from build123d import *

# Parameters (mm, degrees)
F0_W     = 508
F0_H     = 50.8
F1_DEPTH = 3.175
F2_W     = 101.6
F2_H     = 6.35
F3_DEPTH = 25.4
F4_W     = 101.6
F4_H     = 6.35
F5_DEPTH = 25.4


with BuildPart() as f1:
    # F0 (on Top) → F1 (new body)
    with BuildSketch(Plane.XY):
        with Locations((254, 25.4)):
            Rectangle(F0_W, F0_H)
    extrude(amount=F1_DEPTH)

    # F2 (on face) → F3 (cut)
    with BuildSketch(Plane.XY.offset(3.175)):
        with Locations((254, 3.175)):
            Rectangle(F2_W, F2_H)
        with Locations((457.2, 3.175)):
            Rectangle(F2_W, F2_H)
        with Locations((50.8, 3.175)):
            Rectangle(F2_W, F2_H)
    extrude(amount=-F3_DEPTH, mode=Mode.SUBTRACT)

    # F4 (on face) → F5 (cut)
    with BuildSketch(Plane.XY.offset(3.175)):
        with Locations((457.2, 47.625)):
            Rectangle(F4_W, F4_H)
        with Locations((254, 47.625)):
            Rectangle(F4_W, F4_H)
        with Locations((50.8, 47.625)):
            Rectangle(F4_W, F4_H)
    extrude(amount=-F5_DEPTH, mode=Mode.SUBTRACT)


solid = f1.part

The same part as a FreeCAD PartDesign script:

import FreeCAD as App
import Part
import Sketcher

V = App.Vector
Q = App.Units.Quantity


def add_polygon(sketch, points):
    """Adds a closed chain of lines whose ends are joined by coincident constraints."""
    first, n = sketch.GeometryCount, len(points)
    for a, b in zip(points, points[1:] + points[:1]):
        sketch.addGeometry(Part.LineSegment(App.Vector(*a, 0), App.Vector(*b, 0)), False)
    for i in range(n):
        sketch.addConstraint(Sketcher.Constraint("Coincident", first + i, 2, first + (i + 1) % n, 1))

doc = App.newDocument("Part")
body = doc.addObject("PartDesign::Body", "Body")

# Sketch on XY plane
sketch1 = body.newObject("Sketcher::SketchObject", "Sketch")
sketch1.AttachmentSupport = (doc.getObject("XY_Plane"), [""])
sketch1.MapMode = "FlatFace"
add_polygon(sketch1, [(0, 51), (0, 0), (508, 0), (508, 51)])  # lines 0-3
sketch1.addConstraint([
    Sketcher.Constraint("Vertical", 0),
    Sketcher.Constraint("Horizontal", 1),
    Sketcher.Constraint("Vertical", 2),
    Sketcher.Constraint("Horizontal", 3),
    Sketcher.Constraint("Coincident", 0, 2, -1, 1),
    Sketcher.Constraint("DistanceX", 1, 1, 1, 2, Q("20 in")),
    Sketcher.Constraint("DistanceY", 0, 2, 0, 1, Q("2 in")),
])
pad1 = body.newObject("PartDesign::Pad", "Pad")
pad1.Profile = sketch1
pad1.Length = Q("0.125 in")

# Sketch on XY plane
sketch2 = body.newObject("Sketcher::SketchObject", "Sketch001")
sketch2.AttachmentSupport = (doc.getObject("XY_Plane"), [""])
sketch2.MapMode = "FlatFace"
sketch2.AttachmentOffset = App.Placement(V(0, 0, 0.125 * 25.4), App.Rotation())
add_polygon(sketch2, [(203, 6), (203, 0), (305, 0), (305, 6)])  # lines 0-3
add_polygon(sketch2, [(406, 6), (406, 0), (508, 0), (508, 6)])  # lines 4-7
add_polygon(sketch2, [(0, 6), (0, 0), (102, 0), (102, 6)])  # lines 8-11
sketch2.addConstraint([
    Sketcher.Constraint("Vertical", 0),
    Sketcher.Constraint("Horizontal", 1),
    Sketcher.Constraint("Vertical", 2),
    Sketcher.Constraint("Horizontal", 3),
    Sketcher.Constraint("Vertical", 4),
    Sketcher.Constraint("Horizontal", 5),
    Sketcher.Constraint("Vertical", 6),
    Sketcher.Constraint("Horizontal", 7),
    Sketcher.Constraint("Vertical", 8),
    Sketcher.Constraint("Horizontal", 9),
    Sketcher.Constraint("Vertical", 10),
    Sketcher.Constraint("Horizontal", 11),
    Sketcher.Constraint("Coincident", 8, 2, -1, 1),
    Sketcher.Constraint("PointOnObject", 0, 2, -1),
    Sketcher.Constraint("PointOnObject", 4, 2, -1),
    Sketcher.Constraint("Horizontal", 3, 2, 6, 2),
    Sketcher.Constraint("Horizontal", 7, 2, 10, 2),
    Sketcher.Constraint("Equal", 3, 5),
    Sketcher.Constraint("Equal", 7, 9),
    Sketcher.Constraint("DistanceX", 1, 1, 1, 2, Q("4 in")),
    Sketcher.Constraint("DistanceX", -1, 1, 0, 2, Q("8 in")),
    Sketcher.Constraint("DistanceX", -1, 1, 4, 2, Q("16 in")),
    Sketcher.Constraint("DistanceY", 0, 2, 0, 1, Q("0.25 in")),
])
pocket1 = body.newObject("PartDesign::Pocket", "Pocket")
pocket1.Profile = sketch2
pocket1.Length = Q("1 in")

# Sketch on XY plane
sketch3 = body.newObject("Sketcher::SketchObject", "Sketch002")
sketch3.AttachmentSupport = (doc.getObject("XY_Plane"), [""])
sketch3.MapMode = "FlatFace"
sketch3.AttachmentOffset = App.Placement(V(0, 0, 0.125 * 25.4), App.Rotation())
add_polygon(sketch3, [(406, 51), (406, 44), (508, 44), (508, 51)])  # lines 0-3
add_polygon(sketch3, [(203, 51), (203, 44), (305, 44), (305, 51)])  # lines 4-7
add_polygon(sketch3, [(0, 51), (0, 44), (102, 44), (102, 51)])  # lines 8-11
sketch3.addConstraint([
    Sketcher.Constraint("Vertical", 0),
    Sketcher.Constraint("Horizontal", 1),
    Sketcher.Constraint("Vertical", 2),
    Sketcher.Constraint("Horizontal", 3),
    Sketcher.Constraint("Vertical", 4),
    Sketcher.Constraint("Horizontal", 5),
    Sketcher.Constraint("Vertical", 6),
    Sketcher.Constraint("Horizontal", 7),
    Sketcher.Constraint("Vertical", 8),
    Sketcher.Constraint("Horizontal", 9),
    Sketcher.Constraint("Vertical", 10),
    Sketcher.Constraint("Horizontal", 11),
    Sketcher.Constraint("PointOnObject", 8, 2, -2),
    Sketcher.Constraint("Horizontal", 1, 2, 4, 2),
    Sketcher.Constraint("Horizontal", 3, 2, 6, 2),
    Sketcher.Constraint("Horizontal", 5, 2, 8, 2),
    Sketcher.Constraint("Horizontal", 7, 2, 10, 2),
    Sketcher.Constraint("Equal", 3, 5),
    Sketcher.Constraint("Equal", 7, 9),
    Sketcher.Constraint("DistanceX", 1, 1, 1, 2, Q("4 in")),
    Sketcher.Constraint("DistanceX", -1, 1, 0, 2, Q("16 in")),
    Sketcher.Constraint("DistanceY", -1, 1, 2, 2, Q("2 in")),
    Sketcher.Constraint("DistanceX", -1, 1, 4, 2, Q("8 in")),
    Sketcher.Constraint("DistanceY", 0, 2, 0, 1, Q("0.25 in")),
])
pocket2 = body.newObject("PartDesign::Pocket", "Pocket001")
pocket2.Profile = sketch3
pocket2.Length = Q("1 in")

doc.recompute()
